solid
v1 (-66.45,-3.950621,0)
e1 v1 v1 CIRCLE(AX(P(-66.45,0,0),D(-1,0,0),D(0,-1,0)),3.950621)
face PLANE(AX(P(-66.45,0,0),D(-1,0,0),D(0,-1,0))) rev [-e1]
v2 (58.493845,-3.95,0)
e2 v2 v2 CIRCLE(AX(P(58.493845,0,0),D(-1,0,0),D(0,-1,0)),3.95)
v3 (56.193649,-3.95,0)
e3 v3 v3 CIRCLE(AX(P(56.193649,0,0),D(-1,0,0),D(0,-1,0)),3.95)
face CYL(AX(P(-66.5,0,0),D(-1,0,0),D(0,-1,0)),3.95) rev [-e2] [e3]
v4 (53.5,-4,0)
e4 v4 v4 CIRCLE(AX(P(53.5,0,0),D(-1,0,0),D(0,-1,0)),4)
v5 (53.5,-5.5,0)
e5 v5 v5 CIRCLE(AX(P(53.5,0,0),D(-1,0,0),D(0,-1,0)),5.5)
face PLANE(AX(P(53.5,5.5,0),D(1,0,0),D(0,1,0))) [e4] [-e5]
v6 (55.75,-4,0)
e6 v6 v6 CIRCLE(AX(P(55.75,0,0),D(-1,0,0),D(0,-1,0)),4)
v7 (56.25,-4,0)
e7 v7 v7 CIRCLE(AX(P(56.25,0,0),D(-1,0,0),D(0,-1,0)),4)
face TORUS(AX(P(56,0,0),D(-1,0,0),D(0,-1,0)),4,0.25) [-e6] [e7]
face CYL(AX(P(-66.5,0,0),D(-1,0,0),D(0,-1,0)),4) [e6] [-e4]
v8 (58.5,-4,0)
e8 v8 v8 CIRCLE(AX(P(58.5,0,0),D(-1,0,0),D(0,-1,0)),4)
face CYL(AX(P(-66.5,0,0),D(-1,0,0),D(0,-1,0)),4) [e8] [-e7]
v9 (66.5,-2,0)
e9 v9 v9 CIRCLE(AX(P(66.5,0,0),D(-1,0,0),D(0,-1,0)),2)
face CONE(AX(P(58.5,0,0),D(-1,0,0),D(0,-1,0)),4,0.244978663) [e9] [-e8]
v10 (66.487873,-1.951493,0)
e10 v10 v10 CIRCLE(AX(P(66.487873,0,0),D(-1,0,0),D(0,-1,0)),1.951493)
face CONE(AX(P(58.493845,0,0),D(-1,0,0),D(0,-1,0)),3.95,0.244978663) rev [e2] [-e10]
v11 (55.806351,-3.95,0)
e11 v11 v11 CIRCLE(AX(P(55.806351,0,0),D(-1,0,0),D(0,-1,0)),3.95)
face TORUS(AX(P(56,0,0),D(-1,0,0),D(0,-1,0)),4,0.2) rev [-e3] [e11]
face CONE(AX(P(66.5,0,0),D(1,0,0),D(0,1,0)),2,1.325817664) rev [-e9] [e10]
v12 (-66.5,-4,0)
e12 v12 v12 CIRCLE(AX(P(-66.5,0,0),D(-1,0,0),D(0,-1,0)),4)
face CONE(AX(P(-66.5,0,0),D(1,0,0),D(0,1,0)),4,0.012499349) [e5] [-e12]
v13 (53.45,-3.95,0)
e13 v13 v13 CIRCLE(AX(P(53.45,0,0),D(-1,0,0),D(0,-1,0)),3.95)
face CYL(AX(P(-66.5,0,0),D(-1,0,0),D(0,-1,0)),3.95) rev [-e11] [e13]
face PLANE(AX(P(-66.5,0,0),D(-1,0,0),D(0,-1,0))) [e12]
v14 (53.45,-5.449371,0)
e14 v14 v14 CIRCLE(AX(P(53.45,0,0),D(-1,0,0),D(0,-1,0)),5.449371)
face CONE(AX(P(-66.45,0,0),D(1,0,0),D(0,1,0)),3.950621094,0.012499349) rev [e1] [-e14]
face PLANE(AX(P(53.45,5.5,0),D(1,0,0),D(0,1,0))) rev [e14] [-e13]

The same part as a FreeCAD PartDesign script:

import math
import FreeCAD as App
import Part
import Sketcher

doc = App.newDocument("Part")
params = doc.addObject("Spreadsheet::Sheet", "Params")
for row, (alias, value) in enumerate([
    ("sketch1_radius", "0.2 mm"),
    ("sketch1_height", "4 mm"),
    ("sketch1_radius2", "0.25 mm"),
    ("sketch1_height2", "1.5 mm"),
    ("sketch1_width", "0.05 mm"),
    ("revolution_angle", "360 deg"),
], start=1):
    params.set(f"A{row}", alias)
    params.set(f"B{row}", "=" + value)
    params.setAlias(f"B{row}", alias)

body = doc.addObject("PartDesign::Body", "Body")

# Sketch on XY plane
sketch1 = doc.addObject("Sketcher::SketchObject", "Sketch")
body.addObject(sketch1)
sketch1.AttachmentSupport = (doc.XY_Plane, [""])
sketch1.MapMode = "FlatFace"
sketch1.addGeometry(Part.LineSegment(App.Vector(-66.5, 4, 0), App.Vector(-66.5, 0, 0)), False)
sketch1.addGeometry(Part.LineSegment(App.Vector(-66.5, 0, 0), App.Vector(-66.45, 0, 0)), False)
sketch1.addGeometry(Part.LineSegment(App.Vector(-66.45, 0, 0), App.Vector(-66.45, 3.950621, 0)), False)
sketch1.addGeometry(Part.LineSegment(App.Vector(-66.45, 3.950621, 0), App.Vector(53.45, 5.449371, 0)), False)
sketch1.addGeometry(Part.LineSegment(App.Vector(53.45, 5.449371, 0), App.Vector(53.45, 3.95, 0)), False)
sketch1.addGeometry(Part.LineSegment(App.Vector(53.45, 3.95, 0), App.Vector(55.806351, 3.95, 0)), False)
sketch1.addGeometry(Part.ArcOfCircle(Part.Circle(App.Vector(56, 4, 0), App.Vector(0, 0, 1), 0.2), math.radians(-14.477512), math.radians(194.477512)), False)
sketch1.addGeometry(Part.LineSegment(App.Vector(56.193649, 3.95, 0), App.Vector(58.493845, 3.95, 0)), False)
sketch1.addGeometry(Part.LineSegment(App.Vector(58.493845, 3.95, 0), App.Vector(66.487873, 1.951493, 0)), False)
sketch1.addGeometry(Part.LineSegment(App.Vector(66.487873, 1.951493, 0), App.Vector(66.5, 2, 0)), False)
sketch1.addGeometry(Part.LineSegment(App.Vector(66.5, 2, 0), App.Vector(58.5, 4, 0)), False)
sketch1.addGeometry(Part.LineSegment(App.Vector(58.5, 4, 0), App.Vector(56.25, 4, 0)), False)
sketch1.addGeometry(Part.ArcOfCircle(Part.Circle(App.Vector(56, 4, 0), App.Vector(0, 0, 1), 0.25), math.radians(0), math.radians(180)), False)
sketch1.addGeometry(Part.LineSegment(App.Vector(55.75, 4, 0), App.Vector(53.5, 4, 0)), False)
sketch1.addGeometry(Part.LineSegment(App.Vector(53.5, 4, 0), App.Vector(53.5, 5.5, 0)), False)
sketch1.addGeometry(Part.LineSegment(App.Vector(53.5, 5.5, 0), App.Vector(-66.5, 4, 0)), False)
sketch1.addConstraint(Sketcher.Constraint("Coincident", 0, 2, 1, 1))
sketch1.addConstraint(Sketcher.Constraint("Coincident", 1, 2, 2, 1))
sketch1.addConstraint(Sketcher.Constraint("Coincident", 2, 2, 3, 1))
sketch1.addConstraint(Sketcher.Constraint("Coincident", 3, 2, 4, 1))
sketch1.addConstraint(Sketcher.Constraint("Coincident", 4, 2, 5, 1))
sketch1.addConstraint(Sketcher.Constraint("Coincident", 5, 2, 6, 2))
sketch1.addConstraint(Sketcher.Constraint("Coincident", 6, 1, 7, 1))
sketch1.addConstraint(Sketcher.Constraint("Coincident", 7, 2, 8, 1))
sketch1.addConstraint(Sketcher.Constraint("Coincident", 8, 2, 9, 1))
sketch1.addConstraint(Sketcher.Constraint("Coincident", 9, 2, 10, 1))
sketch1.addConstraint(Sketcher.Constraint("Coincident", 10, 2, 11, 1))
sketch1.addConstraint(Sketcher.Constraint("Coincident", 11, 2, 12, 1))
sketch1.addConstraint(Sketcher.Constraint("Coincident", 12, 2, 13, 1))
sketch1.addConstraint(Sketcher.Constraint("Coincident", 13, 2, 14, 1))
sketch1.addConstraint(Sketcher.Constraint("Coincident", 14, 2, 15, 1))
sketch1.addConstraint(Sketcher.Constraint("Coincident", 15, 2, 0, 1))
sketch1.addConstraint(Sketcher.Constraint("Vertical", 0))
sketch1.addConstraint(Sketcher.Constraint("Horizontal", 1))
sketch1.addConstraint(Sketcher.Constraint("Vertical", 2))
sketch1.addConstraint(Sketcher.Constraint("Vertical", 4))
sketch1.addConstraint(Sketcher.Constraint("Horizontal", 5))
sketch1.addConstraint(Sketcher.Constraint("Horizontal", 7))
sketch1.addConstraint(Sketcher.Constraint("Horizontal", 11))
sketch1.addConstraint(Sketcher.Constraint("Horizontal", 13))
sketch1.addConstraint(Sketcher.Constraint("Vertical", 14))
sketch1.addConstraint(Sketcher.Constraint("Coincident", 12, 3, 6, 3))
sketch1.addConstraint(Sketcher.Constraint("PointOnObject", 0, 2, -1))
sketch1.addConstraint(Sketcher.Constraint("Perpendicular", 8, 9))
sketch1.addConstraint(Sketcher.Constraint("Perpendicular", 9, 10))
sketch1.addConstraint(Sketcher.Constraint("Parallel", 3, 15))
sketch1.addConstraint(Sketcher.Constraint("Horizontal", 5, 2, 6, 1))
sketch1.addConstraint(Sketcher.Constraint("Horizontal", 12, 3, 10, 2))
sketch1.addConstraint(Sketcher.Constraint("Horizontal", 11, 2, 12, 2))
sketch1.addConstraint(Sketcher.Constraint("Horizontal", 13, 2, 15, 2))
sketch1.addConstraint(Sketcher.Constraint("Equal", 11, 13))
sketch1.addConstraint(Sketcher.Constraint("Radius", 6, 0.2))
sketch1.addConstraint(Sketcher.Constraint("DistanceY", 0, 2, 0, 1, 4.0))
sketch1.addConstraint(Sketcher.Constraint("Radius", 12, 0.25))
sketch1.addConstraint(Sketcher.Constraint("DistanceY", 14, 1, 14, 2, 1.5))
sketch1.addConstraint(Sketcher.Constraint("DistanceX", -1, 1, 6, 3, 56.0))
sketch1.addConstraint(Sketcher.Constraint("DistanceY", -1, 1, 9, 2, 2.0))
sketch1.addConstraint(Sketcher.Constraint("DistanceX", 1, 1, 1, 2, 0.05))
sketch1.addConstraint(Sketcher.Constraint("DistanceX", 11, 2, 11, 1, 2.25))
sketch1.addConstraint(Sketcher.Constraint("DistanceX", 0, 2, -1, 1, 66.5))
sketch1.addConstraint(Sketcher.Constraint("DistanceX", -1, 1, 9, 2, 66.5))
sketch1.addConstraint(Sketcher.Constraint("DistanceX", 2, 2, 3, 2, 119.9))
sketch1.addConstraint(Sketcher.Constraint("Distance", 9, 0.05))
sketch1.addConstraint(Sketcher.Constraint("DistanceY", -1, 1, 4, 2, 3.95))
sketch1.addConstraint(Sketcher.Constraint("DistanceY", 2, 1, 2, 2, 3.950621))
sketch1.setExpression("Constraints[35]", "Params.sketch1_radius")
sketch1.setExpression("Constraints[36]", "Params.sketch1_height")
sketch1.setExpression("Constraints[37]", "Params.sketch1_radius2")
sketch1.setExpression("Constraints[38]", "Params.sketch1_height2")
sketch1.setExpression("Constraints[41]", "Params.sketch1_width")
revolution = doc.addObject("PartDesign::Revolution", "Revolution")
body.addObject(revolution)
revolution.Profile = sketch1
revolution.ReferenceAxis = (sketch1, ["H_Axis"])
revolution.setExpression("Angle", "Params.revolution_angle")

doc.recompute()
